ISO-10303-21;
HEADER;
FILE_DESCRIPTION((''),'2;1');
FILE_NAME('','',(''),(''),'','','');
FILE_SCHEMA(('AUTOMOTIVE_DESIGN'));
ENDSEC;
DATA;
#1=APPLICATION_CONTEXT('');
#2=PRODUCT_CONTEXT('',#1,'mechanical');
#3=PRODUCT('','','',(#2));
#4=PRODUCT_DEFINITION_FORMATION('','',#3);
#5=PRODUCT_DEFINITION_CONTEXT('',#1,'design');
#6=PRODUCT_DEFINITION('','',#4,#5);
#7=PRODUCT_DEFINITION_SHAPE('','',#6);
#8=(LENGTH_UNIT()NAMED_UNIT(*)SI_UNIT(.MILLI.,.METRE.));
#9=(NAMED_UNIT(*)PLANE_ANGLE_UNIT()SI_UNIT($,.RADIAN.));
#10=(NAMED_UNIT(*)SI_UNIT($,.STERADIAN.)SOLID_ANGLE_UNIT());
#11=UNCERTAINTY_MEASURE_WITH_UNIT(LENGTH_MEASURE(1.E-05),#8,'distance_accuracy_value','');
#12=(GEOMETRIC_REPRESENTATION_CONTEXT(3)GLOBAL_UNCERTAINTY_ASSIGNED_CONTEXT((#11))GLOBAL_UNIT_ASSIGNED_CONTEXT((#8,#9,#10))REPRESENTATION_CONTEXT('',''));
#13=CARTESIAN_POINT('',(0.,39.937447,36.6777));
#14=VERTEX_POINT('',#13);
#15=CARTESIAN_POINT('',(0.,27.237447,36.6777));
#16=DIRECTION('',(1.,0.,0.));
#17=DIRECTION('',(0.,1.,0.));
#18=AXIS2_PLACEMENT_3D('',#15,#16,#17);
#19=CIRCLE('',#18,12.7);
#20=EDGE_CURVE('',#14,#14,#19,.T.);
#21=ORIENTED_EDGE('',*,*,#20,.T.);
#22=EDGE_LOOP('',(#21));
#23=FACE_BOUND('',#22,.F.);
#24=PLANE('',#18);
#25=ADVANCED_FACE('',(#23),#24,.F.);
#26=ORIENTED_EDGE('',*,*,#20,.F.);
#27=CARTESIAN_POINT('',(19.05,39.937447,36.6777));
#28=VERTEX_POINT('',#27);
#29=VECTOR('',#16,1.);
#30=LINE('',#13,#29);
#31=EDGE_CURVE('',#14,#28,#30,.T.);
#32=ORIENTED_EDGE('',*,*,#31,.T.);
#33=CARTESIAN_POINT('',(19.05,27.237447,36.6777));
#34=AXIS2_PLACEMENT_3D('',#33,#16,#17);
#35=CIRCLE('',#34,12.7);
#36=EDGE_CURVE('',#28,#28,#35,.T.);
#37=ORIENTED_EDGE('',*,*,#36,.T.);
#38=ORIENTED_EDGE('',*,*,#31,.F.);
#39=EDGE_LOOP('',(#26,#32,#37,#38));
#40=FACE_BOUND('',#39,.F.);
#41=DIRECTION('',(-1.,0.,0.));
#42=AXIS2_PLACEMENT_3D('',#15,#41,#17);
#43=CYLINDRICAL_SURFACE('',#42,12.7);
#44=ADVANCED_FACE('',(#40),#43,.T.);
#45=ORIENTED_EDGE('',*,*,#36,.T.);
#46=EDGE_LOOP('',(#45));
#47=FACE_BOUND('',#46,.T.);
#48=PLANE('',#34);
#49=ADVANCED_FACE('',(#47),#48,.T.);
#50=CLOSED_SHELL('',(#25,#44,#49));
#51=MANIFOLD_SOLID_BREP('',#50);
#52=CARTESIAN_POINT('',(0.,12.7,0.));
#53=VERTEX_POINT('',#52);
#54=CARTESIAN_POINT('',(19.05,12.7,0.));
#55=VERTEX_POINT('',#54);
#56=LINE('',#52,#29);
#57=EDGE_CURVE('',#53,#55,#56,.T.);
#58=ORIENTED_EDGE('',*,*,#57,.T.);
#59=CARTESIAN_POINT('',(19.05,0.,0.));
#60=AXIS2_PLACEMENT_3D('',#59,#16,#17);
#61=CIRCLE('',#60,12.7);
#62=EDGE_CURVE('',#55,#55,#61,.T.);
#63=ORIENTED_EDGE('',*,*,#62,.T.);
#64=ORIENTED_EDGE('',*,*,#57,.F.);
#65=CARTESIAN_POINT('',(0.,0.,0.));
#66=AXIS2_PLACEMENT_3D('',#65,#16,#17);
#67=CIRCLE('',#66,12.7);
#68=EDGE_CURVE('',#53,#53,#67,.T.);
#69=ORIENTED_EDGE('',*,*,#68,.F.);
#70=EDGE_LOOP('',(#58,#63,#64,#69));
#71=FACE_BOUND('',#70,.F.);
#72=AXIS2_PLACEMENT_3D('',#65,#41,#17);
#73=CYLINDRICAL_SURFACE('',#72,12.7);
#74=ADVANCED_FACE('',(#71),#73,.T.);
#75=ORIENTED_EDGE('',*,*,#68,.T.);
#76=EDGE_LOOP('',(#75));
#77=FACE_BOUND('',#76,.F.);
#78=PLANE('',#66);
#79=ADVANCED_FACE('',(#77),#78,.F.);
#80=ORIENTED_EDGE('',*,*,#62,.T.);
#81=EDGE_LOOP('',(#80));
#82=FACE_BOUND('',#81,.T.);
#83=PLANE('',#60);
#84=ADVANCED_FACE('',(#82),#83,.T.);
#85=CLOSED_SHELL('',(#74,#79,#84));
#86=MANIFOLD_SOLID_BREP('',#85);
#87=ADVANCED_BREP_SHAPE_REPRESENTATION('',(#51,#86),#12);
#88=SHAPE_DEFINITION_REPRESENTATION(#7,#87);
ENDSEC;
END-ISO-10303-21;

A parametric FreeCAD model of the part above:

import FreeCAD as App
import Part
import Sketcher
from FreeCAD import Vector
Q = App.Units.Quantity

doc = App.newDocument("Part")
body = doc.addObject("PartDesign::Body", "Body")
body.AllowCompound = True

# Sketch on YZ plane
sketch1 = body.newObject("Sketcher::SketchObject", "Sketch")
sketch1.AttachmentSupport = (doc.getObject("YZ_Plane"), [""])
sketch1.MapMode = "FlatFace"
sketch1.addGeometry([
    Part.Circle(Vector(27, 37, 0), Vector(0, 0, 1), 13),
    Part.Circle(Vector(0, 0, 0), Vector(0, 0, 1), 13),
], False)
sketch1.addConstraint([
    Sketcher.Constraint("Coincident", 1, 3, -1, 1),
    Sketcher.Constraint("Equal", 0, 1),
    Sketcher.Constraint("Diameter", 0, Q("1 in")),
    Sketcher.Constraint("DistanceY", -1, 1, 0, 3, 36.6777),
    Sketcher.Constraint("DistanceX", -1, 1, 0, 3, 27.237447),
])
pad1 = body.newObject("PartDesign::Pad", "Pad")
pad1.Profile = sketch1
pad1.Length = Q("0.75 in")

doc.recompute()
